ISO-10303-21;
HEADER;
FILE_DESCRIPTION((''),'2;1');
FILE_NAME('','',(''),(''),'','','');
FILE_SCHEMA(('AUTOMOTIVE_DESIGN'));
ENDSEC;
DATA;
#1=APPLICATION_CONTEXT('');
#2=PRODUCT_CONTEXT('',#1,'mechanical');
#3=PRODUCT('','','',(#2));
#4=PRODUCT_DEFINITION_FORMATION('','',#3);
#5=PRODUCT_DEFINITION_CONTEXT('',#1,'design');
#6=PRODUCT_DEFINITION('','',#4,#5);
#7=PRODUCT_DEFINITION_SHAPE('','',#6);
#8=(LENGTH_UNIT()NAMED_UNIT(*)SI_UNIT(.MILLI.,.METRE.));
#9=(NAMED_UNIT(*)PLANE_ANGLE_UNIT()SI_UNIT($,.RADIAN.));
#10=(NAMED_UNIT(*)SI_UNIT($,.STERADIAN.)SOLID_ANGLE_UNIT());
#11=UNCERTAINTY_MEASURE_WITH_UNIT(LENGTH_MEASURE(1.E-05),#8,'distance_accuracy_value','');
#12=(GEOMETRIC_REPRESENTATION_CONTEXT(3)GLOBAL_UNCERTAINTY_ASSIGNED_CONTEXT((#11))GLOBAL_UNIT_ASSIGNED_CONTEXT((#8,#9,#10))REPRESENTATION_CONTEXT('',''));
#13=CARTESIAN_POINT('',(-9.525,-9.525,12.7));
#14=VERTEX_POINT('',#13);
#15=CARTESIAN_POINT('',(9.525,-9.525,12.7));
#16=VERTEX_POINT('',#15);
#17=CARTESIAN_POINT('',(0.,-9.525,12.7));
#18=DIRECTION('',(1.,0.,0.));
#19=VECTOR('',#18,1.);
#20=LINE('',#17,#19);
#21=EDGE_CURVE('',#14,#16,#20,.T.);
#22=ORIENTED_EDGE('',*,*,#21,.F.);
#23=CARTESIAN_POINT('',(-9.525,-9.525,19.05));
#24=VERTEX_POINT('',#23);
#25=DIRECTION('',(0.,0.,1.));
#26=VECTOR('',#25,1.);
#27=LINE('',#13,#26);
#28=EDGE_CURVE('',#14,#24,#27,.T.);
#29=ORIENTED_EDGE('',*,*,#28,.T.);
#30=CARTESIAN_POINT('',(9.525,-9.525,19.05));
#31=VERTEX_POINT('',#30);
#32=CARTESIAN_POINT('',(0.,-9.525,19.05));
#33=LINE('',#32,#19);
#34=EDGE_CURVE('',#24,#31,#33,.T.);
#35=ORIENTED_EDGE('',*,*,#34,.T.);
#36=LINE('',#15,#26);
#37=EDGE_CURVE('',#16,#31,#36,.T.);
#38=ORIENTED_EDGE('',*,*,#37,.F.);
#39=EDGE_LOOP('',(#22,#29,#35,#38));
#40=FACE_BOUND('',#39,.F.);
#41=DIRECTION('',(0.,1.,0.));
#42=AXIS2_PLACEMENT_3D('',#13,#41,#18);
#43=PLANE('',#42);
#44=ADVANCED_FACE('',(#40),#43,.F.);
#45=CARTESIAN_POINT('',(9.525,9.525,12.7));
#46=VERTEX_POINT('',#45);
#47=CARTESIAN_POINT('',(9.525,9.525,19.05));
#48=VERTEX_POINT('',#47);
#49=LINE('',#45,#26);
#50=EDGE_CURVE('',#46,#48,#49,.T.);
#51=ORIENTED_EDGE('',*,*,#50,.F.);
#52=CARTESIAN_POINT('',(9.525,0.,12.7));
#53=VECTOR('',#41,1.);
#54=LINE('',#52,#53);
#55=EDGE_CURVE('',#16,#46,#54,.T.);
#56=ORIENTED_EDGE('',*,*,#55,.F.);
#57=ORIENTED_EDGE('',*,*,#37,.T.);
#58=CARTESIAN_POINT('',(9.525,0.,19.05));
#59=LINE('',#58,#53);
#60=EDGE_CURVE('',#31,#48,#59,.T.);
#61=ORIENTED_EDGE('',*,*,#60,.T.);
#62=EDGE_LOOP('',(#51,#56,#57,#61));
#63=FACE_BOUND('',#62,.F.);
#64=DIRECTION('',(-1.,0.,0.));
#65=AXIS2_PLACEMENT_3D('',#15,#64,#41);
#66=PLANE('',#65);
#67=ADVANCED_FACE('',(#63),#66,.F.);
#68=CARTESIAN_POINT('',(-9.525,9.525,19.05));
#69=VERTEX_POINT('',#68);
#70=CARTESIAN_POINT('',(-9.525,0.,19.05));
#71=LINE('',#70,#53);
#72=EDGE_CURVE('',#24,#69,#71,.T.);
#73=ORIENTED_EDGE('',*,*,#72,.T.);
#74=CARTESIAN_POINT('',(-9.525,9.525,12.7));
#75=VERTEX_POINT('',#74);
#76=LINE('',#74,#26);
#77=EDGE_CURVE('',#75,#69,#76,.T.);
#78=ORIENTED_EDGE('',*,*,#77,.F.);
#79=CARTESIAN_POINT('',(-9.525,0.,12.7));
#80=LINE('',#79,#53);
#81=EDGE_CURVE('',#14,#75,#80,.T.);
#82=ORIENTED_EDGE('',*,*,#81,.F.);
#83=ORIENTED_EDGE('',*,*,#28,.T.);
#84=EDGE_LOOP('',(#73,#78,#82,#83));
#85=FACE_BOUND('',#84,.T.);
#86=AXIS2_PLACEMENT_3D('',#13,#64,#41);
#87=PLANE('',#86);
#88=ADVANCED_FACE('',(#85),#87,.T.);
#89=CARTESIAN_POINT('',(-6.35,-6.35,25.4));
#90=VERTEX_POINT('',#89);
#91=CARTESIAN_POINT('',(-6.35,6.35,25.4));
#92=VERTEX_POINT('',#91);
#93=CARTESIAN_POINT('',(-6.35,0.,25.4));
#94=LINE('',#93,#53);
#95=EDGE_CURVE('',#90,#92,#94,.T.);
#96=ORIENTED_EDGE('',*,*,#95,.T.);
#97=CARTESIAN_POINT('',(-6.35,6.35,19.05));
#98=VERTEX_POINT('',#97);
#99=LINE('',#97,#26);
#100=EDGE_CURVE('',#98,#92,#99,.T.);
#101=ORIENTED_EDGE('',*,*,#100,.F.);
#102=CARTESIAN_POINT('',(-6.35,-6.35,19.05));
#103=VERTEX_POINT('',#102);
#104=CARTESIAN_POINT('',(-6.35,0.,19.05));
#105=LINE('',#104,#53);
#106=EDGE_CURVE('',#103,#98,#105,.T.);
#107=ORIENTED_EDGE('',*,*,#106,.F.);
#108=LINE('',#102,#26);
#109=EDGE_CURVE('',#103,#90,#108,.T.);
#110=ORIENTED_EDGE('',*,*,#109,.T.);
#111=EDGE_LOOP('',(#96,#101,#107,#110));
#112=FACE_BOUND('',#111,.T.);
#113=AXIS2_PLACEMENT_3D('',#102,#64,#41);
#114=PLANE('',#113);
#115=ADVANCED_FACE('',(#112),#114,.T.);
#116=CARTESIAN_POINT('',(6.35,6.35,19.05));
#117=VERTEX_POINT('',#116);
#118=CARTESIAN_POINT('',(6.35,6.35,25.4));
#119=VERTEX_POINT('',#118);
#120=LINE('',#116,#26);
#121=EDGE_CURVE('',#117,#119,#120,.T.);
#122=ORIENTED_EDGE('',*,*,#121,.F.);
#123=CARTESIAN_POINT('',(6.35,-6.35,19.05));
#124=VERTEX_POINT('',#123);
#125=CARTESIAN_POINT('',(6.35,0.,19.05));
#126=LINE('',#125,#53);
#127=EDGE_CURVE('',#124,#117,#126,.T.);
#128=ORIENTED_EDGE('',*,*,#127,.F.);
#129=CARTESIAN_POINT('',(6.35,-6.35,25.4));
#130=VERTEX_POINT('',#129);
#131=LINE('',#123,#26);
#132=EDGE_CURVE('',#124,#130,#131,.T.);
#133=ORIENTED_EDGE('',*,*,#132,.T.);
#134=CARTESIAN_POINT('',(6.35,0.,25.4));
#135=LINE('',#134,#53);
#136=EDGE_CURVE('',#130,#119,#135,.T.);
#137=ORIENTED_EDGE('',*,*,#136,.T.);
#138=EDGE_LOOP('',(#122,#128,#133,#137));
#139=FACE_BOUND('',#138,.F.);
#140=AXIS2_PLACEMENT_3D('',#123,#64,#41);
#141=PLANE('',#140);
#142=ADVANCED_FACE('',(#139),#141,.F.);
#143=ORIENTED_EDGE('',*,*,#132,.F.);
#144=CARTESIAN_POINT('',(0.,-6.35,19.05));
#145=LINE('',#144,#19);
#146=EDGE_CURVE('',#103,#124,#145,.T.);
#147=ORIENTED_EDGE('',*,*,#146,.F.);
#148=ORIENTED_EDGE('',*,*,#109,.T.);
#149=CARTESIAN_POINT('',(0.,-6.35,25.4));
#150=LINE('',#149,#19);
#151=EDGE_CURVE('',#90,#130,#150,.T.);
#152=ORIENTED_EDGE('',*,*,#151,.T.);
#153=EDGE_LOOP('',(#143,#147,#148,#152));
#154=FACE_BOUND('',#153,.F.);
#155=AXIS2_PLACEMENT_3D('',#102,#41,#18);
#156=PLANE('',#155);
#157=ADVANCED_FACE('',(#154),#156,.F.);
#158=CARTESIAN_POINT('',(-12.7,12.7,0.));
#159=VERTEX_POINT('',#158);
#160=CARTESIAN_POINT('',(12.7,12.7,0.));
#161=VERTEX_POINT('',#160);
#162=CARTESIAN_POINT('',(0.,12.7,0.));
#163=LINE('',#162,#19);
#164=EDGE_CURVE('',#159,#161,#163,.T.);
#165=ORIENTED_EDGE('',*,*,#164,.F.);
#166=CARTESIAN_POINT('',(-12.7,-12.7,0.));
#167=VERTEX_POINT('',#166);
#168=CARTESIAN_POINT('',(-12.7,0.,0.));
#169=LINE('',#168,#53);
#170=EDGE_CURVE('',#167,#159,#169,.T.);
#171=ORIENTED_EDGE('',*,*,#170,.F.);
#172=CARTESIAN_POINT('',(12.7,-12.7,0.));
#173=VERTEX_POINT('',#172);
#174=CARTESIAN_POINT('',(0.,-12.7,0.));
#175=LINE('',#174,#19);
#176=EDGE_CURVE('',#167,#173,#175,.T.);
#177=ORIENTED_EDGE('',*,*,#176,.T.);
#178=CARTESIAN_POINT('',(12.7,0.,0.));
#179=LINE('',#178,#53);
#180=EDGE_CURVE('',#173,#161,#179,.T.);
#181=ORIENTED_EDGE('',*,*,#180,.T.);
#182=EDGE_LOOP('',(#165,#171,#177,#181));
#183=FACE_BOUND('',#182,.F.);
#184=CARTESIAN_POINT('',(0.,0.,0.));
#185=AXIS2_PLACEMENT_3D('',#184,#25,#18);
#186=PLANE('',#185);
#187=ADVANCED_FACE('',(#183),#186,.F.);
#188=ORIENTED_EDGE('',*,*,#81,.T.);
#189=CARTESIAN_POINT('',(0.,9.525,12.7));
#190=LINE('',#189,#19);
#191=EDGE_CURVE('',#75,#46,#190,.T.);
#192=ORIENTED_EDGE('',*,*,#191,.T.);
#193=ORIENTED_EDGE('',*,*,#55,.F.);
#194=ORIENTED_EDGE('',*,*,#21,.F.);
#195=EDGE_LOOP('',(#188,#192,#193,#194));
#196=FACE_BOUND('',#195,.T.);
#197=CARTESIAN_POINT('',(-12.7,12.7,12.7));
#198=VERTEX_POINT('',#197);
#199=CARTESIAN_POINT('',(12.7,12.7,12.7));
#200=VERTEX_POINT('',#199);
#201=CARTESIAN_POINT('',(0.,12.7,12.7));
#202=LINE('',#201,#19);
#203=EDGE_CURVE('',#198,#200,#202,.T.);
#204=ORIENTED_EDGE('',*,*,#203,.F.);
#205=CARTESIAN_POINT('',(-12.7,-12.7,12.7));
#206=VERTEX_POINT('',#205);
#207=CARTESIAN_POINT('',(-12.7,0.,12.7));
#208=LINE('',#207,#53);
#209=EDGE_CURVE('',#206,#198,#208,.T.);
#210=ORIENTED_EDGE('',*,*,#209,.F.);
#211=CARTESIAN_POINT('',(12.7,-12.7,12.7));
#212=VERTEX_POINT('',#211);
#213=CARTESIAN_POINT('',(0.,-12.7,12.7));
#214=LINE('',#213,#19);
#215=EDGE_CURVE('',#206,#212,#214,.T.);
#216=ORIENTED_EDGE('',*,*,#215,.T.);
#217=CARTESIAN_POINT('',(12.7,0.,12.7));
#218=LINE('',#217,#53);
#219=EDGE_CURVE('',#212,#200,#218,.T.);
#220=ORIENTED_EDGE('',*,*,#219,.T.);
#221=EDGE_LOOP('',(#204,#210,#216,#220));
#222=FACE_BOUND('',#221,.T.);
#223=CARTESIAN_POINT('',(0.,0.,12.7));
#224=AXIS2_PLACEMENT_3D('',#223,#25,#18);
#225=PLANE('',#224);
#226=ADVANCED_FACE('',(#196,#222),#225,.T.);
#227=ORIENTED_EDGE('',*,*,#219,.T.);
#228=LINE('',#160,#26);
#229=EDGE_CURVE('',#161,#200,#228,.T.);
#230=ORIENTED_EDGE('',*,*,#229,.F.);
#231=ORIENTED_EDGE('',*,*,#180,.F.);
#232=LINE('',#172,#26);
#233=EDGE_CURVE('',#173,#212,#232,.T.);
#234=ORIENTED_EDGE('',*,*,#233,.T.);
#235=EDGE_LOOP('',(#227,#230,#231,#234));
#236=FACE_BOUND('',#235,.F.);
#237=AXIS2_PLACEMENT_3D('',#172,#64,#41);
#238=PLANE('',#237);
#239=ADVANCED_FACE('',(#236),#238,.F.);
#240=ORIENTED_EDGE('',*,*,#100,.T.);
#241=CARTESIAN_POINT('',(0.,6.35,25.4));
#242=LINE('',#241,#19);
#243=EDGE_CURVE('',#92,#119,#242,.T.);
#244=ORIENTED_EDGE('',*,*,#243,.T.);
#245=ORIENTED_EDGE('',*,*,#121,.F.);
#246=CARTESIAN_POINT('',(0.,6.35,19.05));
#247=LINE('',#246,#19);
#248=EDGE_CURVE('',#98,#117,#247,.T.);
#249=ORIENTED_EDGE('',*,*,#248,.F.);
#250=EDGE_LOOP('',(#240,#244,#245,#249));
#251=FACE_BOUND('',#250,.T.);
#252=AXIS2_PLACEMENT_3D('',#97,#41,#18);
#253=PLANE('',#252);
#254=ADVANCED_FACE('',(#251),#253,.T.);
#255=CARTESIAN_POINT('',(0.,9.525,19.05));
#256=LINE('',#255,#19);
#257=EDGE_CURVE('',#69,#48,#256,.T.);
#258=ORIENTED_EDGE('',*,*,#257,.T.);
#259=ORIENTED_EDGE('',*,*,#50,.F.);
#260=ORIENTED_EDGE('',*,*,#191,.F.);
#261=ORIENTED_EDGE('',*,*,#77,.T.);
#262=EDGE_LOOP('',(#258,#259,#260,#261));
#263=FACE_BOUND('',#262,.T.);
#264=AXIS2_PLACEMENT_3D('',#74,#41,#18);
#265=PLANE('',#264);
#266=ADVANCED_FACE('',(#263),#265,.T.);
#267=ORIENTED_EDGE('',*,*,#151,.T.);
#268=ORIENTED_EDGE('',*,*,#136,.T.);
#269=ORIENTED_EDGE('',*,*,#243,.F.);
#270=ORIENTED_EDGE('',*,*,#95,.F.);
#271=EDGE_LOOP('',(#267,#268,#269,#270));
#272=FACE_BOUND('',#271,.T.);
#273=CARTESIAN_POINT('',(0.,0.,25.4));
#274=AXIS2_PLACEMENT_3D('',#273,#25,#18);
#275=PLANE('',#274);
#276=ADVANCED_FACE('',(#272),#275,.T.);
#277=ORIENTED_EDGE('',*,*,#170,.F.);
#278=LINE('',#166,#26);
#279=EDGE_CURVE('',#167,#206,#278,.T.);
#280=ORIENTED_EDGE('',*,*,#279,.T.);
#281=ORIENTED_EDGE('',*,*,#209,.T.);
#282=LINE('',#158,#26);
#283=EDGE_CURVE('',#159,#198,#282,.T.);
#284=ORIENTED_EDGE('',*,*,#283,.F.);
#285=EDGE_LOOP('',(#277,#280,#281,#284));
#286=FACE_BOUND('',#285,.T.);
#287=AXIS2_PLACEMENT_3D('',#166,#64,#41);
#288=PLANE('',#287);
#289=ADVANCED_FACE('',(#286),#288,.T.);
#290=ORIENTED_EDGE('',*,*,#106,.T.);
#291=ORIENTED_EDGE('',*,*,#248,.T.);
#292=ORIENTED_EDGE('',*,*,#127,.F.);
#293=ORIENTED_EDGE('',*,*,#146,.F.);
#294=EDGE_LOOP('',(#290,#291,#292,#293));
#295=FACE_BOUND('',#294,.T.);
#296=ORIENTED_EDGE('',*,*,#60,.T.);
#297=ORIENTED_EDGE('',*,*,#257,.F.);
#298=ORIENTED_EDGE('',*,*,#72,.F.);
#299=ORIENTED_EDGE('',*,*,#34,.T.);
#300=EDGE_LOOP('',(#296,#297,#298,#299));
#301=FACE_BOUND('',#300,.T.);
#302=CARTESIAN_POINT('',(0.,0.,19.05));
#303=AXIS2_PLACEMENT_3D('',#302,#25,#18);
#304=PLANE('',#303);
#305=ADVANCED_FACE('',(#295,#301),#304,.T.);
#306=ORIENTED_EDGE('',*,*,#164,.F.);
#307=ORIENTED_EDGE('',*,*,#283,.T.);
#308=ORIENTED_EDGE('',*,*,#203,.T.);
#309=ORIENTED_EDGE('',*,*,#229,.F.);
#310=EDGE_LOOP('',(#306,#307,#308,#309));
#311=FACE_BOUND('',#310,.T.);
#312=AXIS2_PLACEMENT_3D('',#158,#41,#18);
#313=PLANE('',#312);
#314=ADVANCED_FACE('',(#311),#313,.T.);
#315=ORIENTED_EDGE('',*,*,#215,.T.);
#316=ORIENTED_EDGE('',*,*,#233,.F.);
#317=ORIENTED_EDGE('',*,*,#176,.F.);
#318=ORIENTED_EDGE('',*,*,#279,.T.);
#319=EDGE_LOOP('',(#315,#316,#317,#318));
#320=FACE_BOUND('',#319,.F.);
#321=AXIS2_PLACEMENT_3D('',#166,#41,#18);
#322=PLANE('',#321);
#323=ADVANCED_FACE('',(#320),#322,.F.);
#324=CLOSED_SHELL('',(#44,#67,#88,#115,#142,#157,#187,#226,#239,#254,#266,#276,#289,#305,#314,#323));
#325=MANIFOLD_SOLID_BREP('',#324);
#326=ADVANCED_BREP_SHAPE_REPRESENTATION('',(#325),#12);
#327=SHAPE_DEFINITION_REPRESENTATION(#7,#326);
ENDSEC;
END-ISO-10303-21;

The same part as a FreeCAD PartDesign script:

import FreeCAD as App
import Part
import Sketcher
from FreeCAD import Vector
Q = App.Units.Quantity

doc = App.newDocument("Part")
body = doc.addObject("PartDesign::Body", "Body")

sketch1 = body.newObject("Sketcher::SketchObject", "Sketch")
sketch1.AttachmentSupport = (doc.getObject("XY_Plane"), [""])
sketch1.MapMode = "FlatFace"
sketch1.addGeometry(Part.LineSegment(Vector(-13, 13, 0), Vector(-13, -13, 0)), False)
sketch1.addGeometry(Part.LineSegment(Vector(-13, -13, 0), Vector(13, -13, 0)), False)
sketch1.addGeometry(Part.LineSegment(Vector(13, -13, 0), Vector(13, 13, 0)), False)
sketch1.addGeometry(Part.LineSegment(Vector(13, 13, 0), Vector(-13, 13, 0)), False)
sketch1.addConstraint(Sketcher.Constraint("Coincident", 0, 2, 1, 1))
sketch1.addConstraint(Sketcher.Constraint("Coincident", 1, 2, 2, 1))
sketch1.addConstraint(Sketcher.Constraint("Coincident", 2, 2, 3, 1))
sketch1.addConstraint(Sketcher.Constraint("Coincident", 3, 2, 0, 1))
sketch1.addConstraint(Sketcher.Constraint("Vertical", 0))
sketch1.addConstraint(Sketcher.Constraint("Horizontal", 1))
sketch1.addConstraint(Sketcher.Constraint("Vertical", 2))
sketch1.addConstraint(Sketcher.Constraint("Horizontal", 3))
sketch1.addConstraint(Sketcher.Constraint("Symmetric", 0, 2, 2, 2, -1, 1))
sketch1.addConstraint(Sketcher.Constraint("Equal", 3, 0))
sketch1.addConstraint(Sketcher.Constraint("DistanceX", 1, 1, 1, 2, Q("1 in")))
pad1 = body.newObject("PartDesign::Pad", "Pad")
pad1.Profile = sketch1
pad1.Length = Q("0.5 in")

sketch2 = body.newObject("Sketcher::SketchObject", "Sketch001")
sketch2.AttachmentSupport = (doc.getObject("XY_Plane"), [""])
sketch2.MapMode = "FlatFace"
sketch2.AttachmentOffset = App.Placement(Vector(0, 0, 0.5 * 25.4), App.Rotation())
sketch2.addGeometry(Part.LineSegment(Vector(-10, 10, 0), Vector(-10, -10, 0)), False)
sketch2.addGeometry(Part.LineSegment(Vector(-10, -10, 0), Vector(10, -10, 0)), False)
sketch2.addGeometry(Part.LineSegment(Vector(10, -10, 0), Vector(10, 10, 0)), False)
sketch2.addGeometry(Part.LineSegment(Vector(10, 10, 0), Vector(-10, 10, 0)), False)
sketch2.addConstraint(Sketcher.Constraint("Coincident", 0, 2, 1, 1))
sketch2.addConstraint(Sketcher.Constraint("Coincident", 1, 2, 2, 1))
sketch2.addConstraint(Sketcher.Constraint("Coincident", 2, 2, 3, 1))
sketch2.addConstraint(Sketcher.Constraint("Coincident", 3, 2, 0, 1))
sketch2.addConstraint(Sketcher.Constraint("Vertical", 0))
sketch2.addConstraint(Sketcher.Constraint("Horizontal", 1))
sketch2.addConstraint(Sketcher.Constraint("Vertical", 2))
sketch2.addConstraint(Sketcher.Constraint("Horizontal", 3))
sketch2.addConstraint(Sketcher.Constraint("Symmetric", 0, 2, 2, 2, -1, 1))
sketch2.addConstraint(Sketcher.Constraint("Equal", 3, 0))
sketch2.addConstraint(Sketcher.Constraint("DistanceX", 1, 1, 1, 2, Q("0.75 in")))
pad2 = body.newObject("PartDesign::Pad", "Pad001")
pad2.Profile = sketch2
pad2.Length = Q("0.25 in")

sketch3 = body.newObject("Sketcher::SketchObject", "Sketch002")
sketch3.AttachmentSupport = (doc.getObject("XY_Plane"), [""])
sketch3.MapMode = "FlatFace"
sketch3.AttachmentOffset = App.Placement(Vector(0, 0, 0.75 * 25.4), App.Rotation())
sketch3.addGeometry(Part.LineSegment(Vector(-6, 6, 0), Vector(-6, -6, 0)), False)
sketch3.addGeometry(Part.LineSegment(Vector(-6, -6, 0), Vector(6, -6, 0)), False)
sketch3.addGeometry(Part.LineSegment(Vector(6, -6, 0), Vector(6, 6, 0)), False)
sketch3.addGeometry(Part.LineSegment(Vector(6, 6, 0), Vector(-6, 6, 0)), False)
sketch3.addConstraint(Sketcher.Constraint("Coincident", 0, 2, 1, 1))
sketch3.addConstraint(Sketcher.Constraint("Coincident", 1, 2, 2, 1))
sketch3.addConstraint(Sketcher.Constraint("Coincident", 2, 2, 3, 1))
sketch3.addConstraint(Sketcher.Constraint("Coincident", 3, 2, 0, 1))
sketch3.addConstraint(Sketcher.Constraint("Vertical", 0))
sketch3.addConstraint(Sketcher.Constraint("Horizontal", 1))
sketch3.addConstraint(Sketcher.Constraint("Vertical", 2))
sketch3.addConstraint(Sketcher.Constraint("Horizontal", 3))
sketch3.addConstraint(Sketcher.Constraint("Symmetric", 0, 2, 2, 2, -1, 1))
sketch3.addConstraint(Sketcher.Constraint("Equal", 3, 0))
sketch3.addConstraint(Sketcher.Constraint("DistanceX", 1, 1, 1, 2, Q("0.5 in")))
pad3 = body.newObject("PartDesign::Pad", "Pad002")
pad3.Profile = sketch3
pad3.Length = Q("0.25 in")

doc.recompute()
